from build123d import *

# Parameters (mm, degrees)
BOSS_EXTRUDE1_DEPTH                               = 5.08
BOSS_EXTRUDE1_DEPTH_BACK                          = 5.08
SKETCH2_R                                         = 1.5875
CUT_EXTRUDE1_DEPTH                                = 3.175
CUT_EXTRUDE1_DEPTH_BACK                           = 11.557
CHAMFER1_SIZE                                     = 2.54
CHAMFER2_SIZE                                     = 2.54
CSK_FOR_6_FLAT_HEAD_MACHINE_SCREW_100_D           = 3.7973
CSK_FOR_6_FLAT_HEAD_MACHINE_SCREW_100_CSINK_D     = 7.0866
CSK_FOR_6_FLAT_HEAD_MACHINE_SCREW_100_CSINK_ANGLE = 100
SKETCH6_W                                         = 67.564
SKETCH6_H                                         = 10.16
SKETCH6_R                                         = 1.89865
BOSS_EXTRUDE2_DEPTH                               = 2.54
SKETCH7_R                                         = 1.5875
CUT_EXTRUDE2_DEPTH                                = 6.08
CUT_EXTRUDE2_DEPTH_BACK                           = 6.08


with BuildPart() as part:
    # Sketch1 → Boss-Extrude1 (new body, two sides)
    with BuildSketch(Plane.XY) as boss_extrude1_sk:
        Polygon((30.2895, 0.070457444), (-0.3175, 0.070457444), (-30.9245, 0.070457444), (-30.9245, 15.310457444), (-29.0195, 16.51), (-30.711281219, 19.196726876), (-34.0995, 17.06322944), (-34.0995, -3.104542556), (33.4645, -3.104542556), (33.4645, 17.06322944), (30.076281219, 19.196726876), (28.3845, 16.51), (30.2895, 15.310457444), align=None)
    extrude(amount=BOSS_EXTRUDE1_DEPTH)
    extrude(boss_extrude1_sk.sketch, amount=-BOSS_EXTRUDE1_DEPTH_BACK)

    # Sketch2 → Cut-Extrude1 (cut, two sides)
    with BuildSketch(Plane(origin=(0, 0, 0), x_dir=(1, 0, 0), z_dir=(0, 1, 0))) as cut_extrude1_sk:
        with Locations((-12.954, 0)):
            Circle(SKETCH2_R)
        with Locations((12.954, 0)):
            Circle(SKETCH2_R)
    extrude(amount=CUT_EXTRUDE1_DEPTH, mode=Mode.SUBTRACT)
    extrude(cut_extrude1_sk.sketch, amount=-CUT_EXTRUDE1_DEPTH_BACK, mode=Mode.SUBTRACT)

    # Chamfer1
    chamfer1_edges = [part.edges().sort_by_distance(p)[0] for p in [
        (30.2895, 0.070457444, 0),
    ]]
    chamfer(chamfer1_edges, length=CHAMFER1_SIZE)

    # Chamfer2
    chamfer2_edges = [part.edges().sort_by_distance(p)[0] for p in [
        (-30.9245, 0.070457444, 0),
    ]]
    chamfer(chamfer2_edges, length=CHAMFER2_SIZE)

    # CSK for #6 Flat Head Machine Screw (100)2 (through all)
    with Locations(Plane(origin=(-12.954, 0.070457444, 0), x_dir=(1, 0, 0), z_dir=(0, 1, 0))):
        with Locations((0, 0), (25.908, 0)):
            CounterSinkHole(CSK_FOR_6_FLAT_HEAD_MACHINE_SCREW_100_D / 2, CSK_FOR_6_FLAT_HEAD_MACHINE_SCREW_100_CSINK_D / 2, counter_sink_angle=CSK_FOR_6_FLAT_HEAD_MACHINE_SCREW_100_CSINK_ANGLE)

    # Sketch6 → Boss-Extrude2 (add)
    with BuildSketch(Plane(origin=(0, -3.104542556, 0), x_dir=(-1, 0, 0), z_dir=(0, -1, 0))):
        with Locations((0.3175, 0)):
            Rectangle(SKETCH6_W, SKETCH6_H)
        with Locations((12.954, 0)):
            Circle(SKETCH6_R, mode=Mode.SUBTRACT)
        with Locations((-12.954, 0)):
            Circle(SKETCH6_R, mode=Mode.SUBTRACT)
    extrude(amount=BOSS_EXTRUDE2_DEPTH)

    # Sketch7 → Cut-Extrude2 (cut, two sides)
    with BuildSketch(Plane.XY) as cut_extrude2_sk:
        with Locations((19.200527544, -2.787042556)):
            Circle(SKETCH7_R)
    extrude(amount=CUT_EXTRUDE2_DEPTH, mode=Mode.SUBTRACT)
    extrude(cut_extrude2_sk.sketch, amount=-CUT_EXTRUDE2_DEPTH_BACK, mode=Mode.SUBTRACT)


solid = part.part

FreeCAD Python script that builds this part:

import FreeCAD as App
import Part
import Sketcher

V = App.Vector
Q = App.Units.Quantity


def edges_at(feature, points):
    """Names of the edges that pass closest to the given points."""
    edges = feature.Shape.Edges
    near = lambda p: min(range(len(edges)), key=lambda i: edges[i].distToShape(Part.Vertex(*p))[0])
    return sorted({f"Edge{near(p) + 1}" for p in points})

doc = App.newDocument("Part")
body = doc.addObject("PartDesign::Body", "Body")

# Sketch on XY plane
sketch1 = body.newObject("Sketcher::SketchObject", "Sketch")
sketch1.AttachmentSupport = (doc.getObject("XY_Plane"), [""])
sketch1.MapMode = "FlatFace"
sketch1.addGeometry(Part.LineSegment(V(30.2895, 0.070457, 0), V(-30.9245, 0.070457, 0)), False)
sketch1.addGeometry(Part.LineSegment(V(-30.9245, 0.070457, 0), V(-30.9245, 15.310457, 0)), False)
sketch1.addGeometry(Part.LineSegment(V(-30.9245, 15.310457, 0), V(-29.0195, 16.51, 0)), False)
sketch1.addGeometry(Part.LineSegment(V(-29.0195, 16.51, 0), V(-30.711281, 19.196727, 0)), False)
sketch1.addGeometry(Part.LineSegment(V(-30.711281, 19.196727, 0), V(-34.0995, 17.063229, 0)), False)
sketch1.addGeometry(Part.LineSegment(V(-34.0995, 17.063229, 0), V(-34.0995, -3.104543, 0)), False)
sketch1.addGeometry(Part.LineSegment(V(-34.0995, -3.104543, 0), V(33.4645, -3.104543, 0)), False)
sketch1.addGeometry(Part.LineSegment(V(33.4645, -3.104543, 0), V(33.4645, 17.063229, 0)), False)
sketch1.addGeometry(Part.LineSegment(V(33.4645, 17.063229, 0), V(30.076281, 19.196727, 0)), False)
sketch1.addGeometry(Part.LineSegment(V(30.076281, 19.196727, 0), V(28.3845, 16.51, 0)), False)
sketch1.addGeometry(Part.LineSegment(V(28.3845, 16.51, 0), V(30.2895, 15.310457, 0)), False)
sketch1.addGeometry(Part.LineSegment(V(30.2895, 15.310457, 0), V(30.2895, 0.070457, 0)), False)
sketch1.addConstraint(Sketcher.Constraint("Coincident", 0, 2, 1, 1))
sketch1.addConstraint(Sketcher.Constraint("Coincident", 1, 2, 2, 1))
sketch1.addConstraint(Sketcher.Constraint("Coincident", 2, 2, 3, 1))
sketch1.addConstraint(Sketcher.Constraint("Coincident", 3, 2, 4, 1))
sketch1.addConstraint(Sketcher.Constraint("Coincident", 4, 2, 5, 1))
sketch1.addConstraint(Sketcher.Constraint("Coincident", 5, 2, 6, 1))
sketch1.addConstraint(Sketcher.Constraint("Coincident", 6, 2, 7, 1))
sketch1.addConstraint(Sketcher.Constraint("Coincident", 7, 2, 8, 1))
sketch1.addConstraint(Sketcher.Constraint("Coincident", 8, 2, 9, 1))
sketch1.addConstraint(Sketcher.Constraint("Coincident", 9, 2, 10, 1))
sketch1.addConstraint(Sketcher.Constraint("Coincident", 10, 2, 11, 1))
sketch1.addConstraint(Sketcher.Constraint("Coincident", 11, 2, 0, 1))
sketch1.addConstraint(Sketcher.Constraint("Horizontal", 0))
sketch1.addConstraint(Sketcher.Constraint("Vertical", 1))
sketch1.addConstraint(Sketcher.Constraint("Vertical", 5))
sketch1.addConstraint(Sketcher.Constraint("Horizontal", 6))
sketch1.addConstraint(Sketcher.Constraint("Vertical", 7))
sketch1.addConstraint(Sketcher.Constraint("Vertical", 11))
sketch1.addConstraint(Sketcher.Constraint("Perpendicular", 2, 3))
sketch1.addConstraint(Sketcher.Constraint("Perpendicular", 3, 4))
sketch1.addConstraint(Sketcher.Constraint("Perpendicular", 8, 9))
sketch1.addConstraint(Sketcher.Constraint("Perpendicular", 9, 10))
sketch1.addConstraint(Sketcher.Constraint("Horizontal", 4, 2, 7, 2))
sketch1.addConstraint(Sketcher.Constraint("Horizontal", 3, 2, 8, 2))
sketch1.addConstraint(Sketcher.Constraint("Horizontal", 2, 2, 9, 2))
sketch1.addConstraint(Sketcher.Constraint("Horizontal", 1, 2, 10, 2))
sketch1.addConstraint(Sketcher.Constraint("Equal", 4, 8))
sketch1.addConstraint(Sketcher.Constraint("DistanceY", 1, 1, 1, 2, Q("0.6 in")))
sketch1.addConstraint(Sketcher.Constraint("DistanceX", 0, 2, 0, 1, Q("2.41 in")))
sketch1.addConstraint(Sketcher.Constraint("DistanceX", 6, 1, 6, 2, Q("2.66 in")))
sketch1.addConstraint(Sketcher.Constraint("DistanceX", 4, 2, 2, 2, Q("0.2 in")))
sketch1.addConstraint(Sketcher.Constraint("DistanceY", -1, 1, 2, 2, Q("0.65 in")))
sketch1.addConstraint(Sketcher.Constraint("Distance", 3, Q("0.125 in")))
sketch1.addConstraint(Sketcher.Constraint("DistanceY", 5, 2, 0, 2, Q("0.125 in")))
sketch1.addConstraint(Sketcher.Constraint("DistanceX", 0, 2, -1, 1, Q("1.2175 in")))
sketch1.addConstraint(Sketcher.Constraint("DistanceY", 5, 2, 5, 1, Q("20.167772 mm")))
pad1 = body.newObject("PartDesign::Pad", "Pad")
pad1.Profile = sketch1
pad1.Type = "TwoLengths"
pad1.Length = Q("0.2 in")
pad1.Length2 = Q("0.2 in")

# Sketch on XZ plane
sketch2 = body.newObject("Sketcher::SketchObject", "Sketch001")
sketch2.AttachmentSupport = (doc.getObject("XZ_Plane"), [""])
sketch2.MapMode = "FlatFace"
sketch2.addGeometry(Part.Circle(V(-12.954, 0, 0), V(0, 0, 1), 1.5875), False)
sketch2.addGeometry(Part.Circle(V(12.954, 0, 0), V(0, 0, 1), 1.5875), False)
sketch2.addConstraint(Sketcher.Constraint("Equal", 0, 1))
sketch2.addConstraint(Sketcher.Constraint("Symmetric", 0, 3, 1, 3, -1, 1))
sketch2.addConstraint(Sketcher.Constraint("PointOnObject", 0, 3, -1))
sketch2.addConstraint(Sketcher.Constraint("Diameter", 0, Q("0.125 in")))
sketch2.addConstraint(Sketcher.Constraint("DistanceX", 0, 3, -1, 1, Q("0.51 in")))
pocket1 = body.newObject("PartDesign::Pocket", "Pocket")
pocket1.Profile = sketch2
pocket1.Type = "ThroughAll"
pocket1.Midplane = True
doc.recompute()

chamfer = body.newObject("PartDesign::Chamfer", "Chamfer")
chamfer.Base = (pocket1, edges_at(pocket1, [(30.29, 0.07, 0)]))
chamfer.Size = Q("0.1 in")
doc.recompute()

chamfer2 = body.newObject("PartDesign::Chamfer", "Chamfer001")
chamfer2.Base = (chamfer, edges_at(chamfer, [(-30.924, 0.07, 0)]))
chamfer2.Size = Q("0.1 in")

# Sketch on XZ plane
sketch3 = body.newObject("Sketcher::SketchObject", "Sketch002")
sketch3.AttachmentSupport = (doc.getObject("XZ_Plane"), [""])
sketch3.MapMode = "FlatFace"
sketch3.AttachmentOffset = App.Placement(V(0, 0, -0.070457), App.Rotation())
sketch3.addGeometry(Part.Circle(V(-12.954, 0, 0), V(0, 0, 1), 1.89865), False)
sketch3.addGeometry(Part.Circle(V(12.954, 0, 0), V(0, 0, 1), 1.89865), False)
sketch3.addConstraint(Sketcher.Constraint("Equal", 0, 1))
sketch3.addConstraint(Sketcher.Constraint("Symmetric", 0, 3, 1, 3, -1, 1))
sketch3.addConstraint(Sketcher.Constraint("PointOnObject", 0, 3, -1))
sketch3.addConstraint(Sketcher.Constraint("Diameter", 0, Q("0.1495 in")))
sketch3.addConstraint(Sketcher.Constraint("DistanceX", 0, 3, -1, 1, Q("0.51 in")))
doc.recompute()
hole = body.newObject("PartDesign::Hole", "Hole")
hole.Profile = sketch3
hole.ThreadType = "None"
hole.Diameter = Q("0.1495 in")
hole.DepthType = "ThroughAll"
hole.HoleCutType = "Countersink"
hole.HoleCutDiameter = Q("0.279 in")
hole.HoleCutCountersinkAngle = 100
hole.Reversed = True

# Sketch on XZ plane
sketch4 = body.newObject("Sketcher::SketchObject", "Sketch003")
sketch4.AttachmentSupport = (doc.getObject("XZ_Plane"), [""])
sketch4.MapMode = "FlatFace"
sketch4.AttachmentOffset = App.Placement(V(0, 0, 3.104543), App.Rotation())
sketch4.addGeometry(Part.LineSegment(V(33.4645, -5.08, 0), V(33.4645, 5.08, 0)), False)
sketch4.addGeometry(Part.LineSegment(V(33.4645, 5.08, 0), V(-34.0995, 5.08, 0)), False)
sketch4.addGeometry(Part.LineSegment(V(-34.0995, 5.08, 0), V(-34.0995, -5.08, 0)), False)
sketch4.addGeometry(Part.LineSegment(V(-34.0995, -5.08, 0), V(33.4645, -5.08, 0)), False)
sketch4.addGeometry(Part.Circle(V(12.954, 0, 0), V(0, 0, 1), 1.89865), False)
sketch4.addGeometry(Part.Circle(V(-12.954, 0, 0), V(0, 0, 1), 1.89865), False)
sketch4.addConstraint(Sketcher.Constraint("Coincident", 0, 2, 1, 1))
sketch4.addConstraint(Sketcher.Constraint("Coincident", 1, 2, 2, 1))
sketch4.addConstraint(Sketcher.Constraint("Coincident", 2, 2, 3, 1))
sketch4.addConstraint(Sketcher.Constraint("Coincident", 3, 2, 0, 1))
sketch4.addConstraint(Sketcher.Constraint("Vertical", 0))
sketch4.addConstraint(Sketcher.Constraint("Horizontal", 1))
sketch4.addConstraint(Sketcher.Constraint("Vertical", 2))
sketch4.addConstraint(Sketcher.Constraint("Horizontal", 3))
sketch4.addConstraint(Sketcher.Constraint("Equal", 4, 5))
sketch4.addConstraint(Sketcher.Constraint("Symmetric", 4, 3, 5, 3, -1, 1))
sketch4.addConstraint(Sketcher.Constraint("PointOnObject", 4, 3, -1))
sketch4.addConstraint(Sketcher.Constraint("DistanceY", 0, 1, 0, 2, Q("0.4 in")))
sketch4.addConstraint(Sketcher.Constraint("Diameter", 4, Q("0.1495 in")))
sketch4.addConstraint(Sketcher.Constraint("DistanceX", 1, 2, 1, 1, Q("2.66 in")))
sketch4.addConstraint(Sketcher.Constraint("DistanceY", -1, 1, 0, 2, Q("0.2 in")))
sketch4.addConstraint(Sketcher.Constraint("DistanceX", -1, 1, 4, 3, Q("0.51 in")))
sketch4.addConstraint(Sketcher.Constraint("DistanceX", -1, 1, 0, 2, Q("1.3175 in")))
pad2 = body.newObject("PartDesign::Pad", "Pad001")
pad2.Profile = sketch4
pad2.Length = Q("0.1 in")

# Sketch on XY plane
sketch5 = body.newObject("Sketcher::SketchObject", "Sketch004")
sketch5.AttachmentSupport = (doc.getObject("XY_Plane"), [""])
sketch5.MapMode = "FlatFace"
sketch5.addGeometry(Part.Circle(V(19.200528, -2.787043, 0), V(0, 0, 1), 1.5875), False)
sketch5.addConstraint(Sketcher.Constraint("Diameter", 0, Q("0.125 in")))
sketch5.addConstraint(Sketcher.Constraint("DistanceX", -1, 1, 0, 3, Q("19.200528 mm")))
sketch5.addConstraint(Sketcher.Constraint("DistanceY", 0, 3, -1, 1, Q("2.787043 mm")))
pocket2 = body.newObject("PartDesign::Pocket", "Pocket001")
pocket2.Profile = sketch5
pocket2.Type = "ThroughAll"
pocket2.Midplane = True

doc.recompute()
